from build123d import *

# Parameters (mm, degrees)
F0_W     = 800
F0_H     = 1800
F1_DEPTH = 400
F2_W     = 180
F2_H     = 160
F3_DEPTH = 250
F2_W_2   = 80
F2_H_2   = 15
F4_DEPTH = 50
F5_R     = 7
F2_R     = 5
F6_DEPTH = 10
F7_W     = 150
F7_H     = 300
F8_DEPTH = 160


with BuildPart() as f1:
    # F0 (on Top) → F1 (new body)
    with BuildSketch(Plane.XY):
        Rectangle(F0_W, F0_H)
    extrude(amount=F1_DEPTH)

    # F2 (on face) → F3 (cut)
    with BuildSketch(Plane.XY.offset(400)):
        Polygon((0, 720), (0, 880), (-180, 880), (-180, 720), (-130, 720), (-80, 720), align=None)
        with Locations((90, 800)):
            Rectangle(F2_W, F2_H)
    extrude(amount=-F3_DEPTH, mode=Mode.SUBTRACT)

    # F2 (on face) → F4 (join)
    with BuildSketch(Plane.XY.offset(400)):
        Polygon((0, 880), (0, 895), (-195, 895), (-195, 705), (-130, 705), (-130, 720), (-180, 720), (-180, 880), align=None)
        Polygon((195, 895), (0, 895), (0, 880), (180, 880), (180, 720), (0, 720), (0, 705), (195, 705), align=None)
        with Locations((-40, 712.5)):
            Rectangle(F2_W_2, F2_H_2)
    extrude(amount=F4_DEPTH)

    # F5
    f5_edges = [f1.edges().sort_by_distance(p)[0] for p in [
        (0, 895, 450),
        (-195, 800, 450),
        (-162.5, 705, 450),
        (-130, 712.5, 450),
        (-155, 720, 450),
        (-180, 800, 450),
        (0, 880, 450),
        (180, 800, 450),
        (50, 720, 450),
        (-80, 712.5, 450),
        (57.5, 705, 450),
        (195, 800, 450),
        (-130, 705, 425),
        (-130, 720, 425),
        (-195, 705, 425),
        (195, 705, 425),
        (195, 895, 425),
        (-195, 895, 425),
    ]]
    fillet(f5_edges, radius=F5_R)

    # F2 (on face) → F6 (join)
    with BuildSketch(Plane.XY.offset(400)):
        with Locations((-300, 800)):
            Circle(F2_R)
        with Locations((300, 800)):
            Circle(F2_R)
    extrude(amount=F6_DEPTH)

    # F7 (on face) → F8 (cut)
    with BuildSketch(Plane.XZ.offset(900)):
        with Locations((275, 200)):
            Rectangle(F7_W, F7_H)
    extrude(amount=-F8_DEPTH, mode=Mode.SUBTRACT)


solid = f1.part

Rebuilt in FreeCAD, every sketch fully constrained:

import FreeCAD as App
import Part
import Sketcher

V = App.Vector
Q = App.Units.Quantity


def edges_at(feature, points):
    """Names of the edges that pass closest to the given points."""
    edges = feature.Shape.Edges
    near = lambda p: min(range(len(edges)), key=lambda i: edges[i].distToShape(Part.Vertex(*p))[0])
    return sorted({f"Edge{near(p) + 1}" for p in points})

doc = App.newDocument("Part")
params = doc.addObject("Spreadsheet::Sheet", "Params")
for row, (alias, value) in enumerate([
    ("sketch1_width", "800 mm"),
    ("sketch1_height", "1800 mm"),
    ("pad1_length", "400 mm"),
    ("sketch2_width", "360 mm"),
    ("sketch2_height", "160 mm"),
    ("pocket1_length", "250 mm"),
    ("sketch3_width", "65 mm"),
    ("sketch3_width2", "50 mm"),
    ("sketch3_width3", "360 mm"),
    ("sketch3_width4", "260 mm"),
    ("sketch3_height", "190 mm"),
    ("pad2_length", "50 mm"),
    ("fillet_radius", "7 mm"),
    ("sketch4_diameter", "10 mm"),
    ("pad3_length", "10 mm"),
    ("sketch5_width", "150 mm"),
    ("sketch5_height", "300 mm"),
    ("pocket2_length", "160 mm"),
], start=1):
    params.set(f"A{row}", alias)
    params.set(f"B{row}", "=" + value)
    params.setAlias(f"B{row}", alias)

body = doc.addObject("PartDesign::Body", "Body")

# Sketch on XY plane
sketch1 = body.newObject("Sketcher::SketchObject", "Sketch")
sketch1.AttachmentSupport = (doc.getObject("XY_Plane"), [""])
sketch1.MapMode = "FlatFace"
sketch1.addGeometry([
    Part.LineSegment(V(-400, 900, 0), V(-400, -900, 0)),
    Part.LineSegment(V(-400, -900, 0), V(400, -900, 0)),
    Part.LineSegment(V(400, -900, 0), V(400, 900, 0)),
    Part.LineSegment(V(400, 900, 0), V(-400, 900, 0)),
], False)
sketch1.addConstraint([
    Sketcher.Constraint("Coincident", 0, 2, 1, 1),
    Sketcher.Constraint("Coincident", 1, 2, 2, 1),
    Sketcher.Constraint("Coincident", 2, 2, 3, 1),
    Sketcher.Constraint("Coincident", 3, 2, 0, 1),
    Sketcher.Constraint("Vertical", 0),
    Sketcher.Constraint("Horizontal", 1),
    Sketcher.Constraint("Vertical", 2),
    Sketcher.Constraint("Horizontal", 3),
    Sketcher.Constraint("Symmetric", 0, 2, 2, 2, -1, 1),
    Sketcher.Constraint("DistanceX", 1, 1, 1, 2, Q("800 mm")),
    Sketcher.Constraint("DistanceY", 0, 2, 0, 1, Q("1800 mm")),
])
sketch1.setExpression("Constraints[9]", "Params.sketch1_width")
sketch1.setExpression("Constraints[10]", "Params.sketch1_height")
pad1 = body.newObject("PartDesign::Pad", "Pad")
pad1.Profile = sketch1
pad1.setExpression("Length", "Params.pad1_length")

# Sketch on XY plane
sketch2 = body.newObject("Sketcher::SketchObject", "Sketch001")
sketch2.AttachmentSupport = (doc.getObject("XY_Plane"), [""])
sketch2.MapMode = "FlatFace"
sketch2.AttachmentOffset = App.Placement(V(0, 0, 400), App.Rotation())
sketch2.addGeometry([
    Part.LineSegment(V(-180, 880, 0), V(-180, 720, 0)),
    Part.LineSegment(V(-180, 720, 0), V(180, 720, 0)),
    Part.LineSegment(V(180, 720, 0), V(180, 880, 0)),
    Part.LineSegment(V(180, 880, 0), V(-180, 880, 0)),
], False)
sketch2.addConstraint([
    Sketcher.Constraint("Coincident", 0, 2, 1, 1),
    Sketcher.Constraint("Coincident", 1, 2, 2, 1),
    Sketcher.Constraint("Coincident", 2, 2, 3, 1),
    Sketcher.Constraint("Coincident", 3, 2, 0, 1),
    Sketcher.Constraint("Vertical", 0),
    Sketcher.Constraint("Horizontal", 1),
    Sketcher.Constraint("Vertical", 2),
    Sketcher.Constraint("Horizontal", 3),
    Sketcher.Constraint("DistanceX", 1, 1, 1, 2, Q("360 mm")),
    Sketcher.Constraint("DistanceY", 0, 2, 0, 1, Q("160 mm")),
    Sketcher.Constraint("DistanceX", 0, 2, -1, 1, Q("180 mm")),
    Sketcher.Constraint("DistanceY", -1, 1, 0, 2, Q("720 mm")),
])
sketch2.setExpression("Constraints[8]", "Params.sketch2_width")
sketch2.setExpression("Constraints[9]", "Params.sketch2_height")
pocket1 = body.newObject("PartDesign::Pocket", "Pocket")
pocket1.Profile = sketch2
pocket1.setExpression("Length", "Params.pocket1_length")

# Sketch on XY plane
sketch3 = body.newObject("Sketcher::SketchObject", "Sketch002")
sketch3.AttachmentSupport = (doc.getObject("XY_Plane"), [""])
sketch3.MapMode = "FlatFace"
sketch3.AttachmentOffset = App.Placement(V(0, 0, 400), App.Rotation())
sketch3.addGeometry([
    Part.LineSegment(V(-195, 895, 0), V(-195, 705, 0)),  # 0
    Part.LineSegment(V(-195, 705, 0), V(-130, 705, 0)),  # 1
    Part.LineSegment(V(-130, 705, 0), V(-130, 720, 0)),  # 2
    Part.LineSegment(V(-130, 720, 0), V(-180, 720, 0)),  # 3
    Part.LineSegment(V(-180, 720, 0), V(-180, 880, 0)),  # 4
    Part.LineSegment(V(-180, 880, 0), V(180, 880, 0)),  # 5
    Part.LineSegment(V(180, 880, 0), V(180, 720, 0)),  # 6
    Part.LineSegment(V(180, 720, 0), V(-80, 720, 0)),  # 7
    Part.LineSegment(V(-80, 720, 0), V(-80, 705, 0)),  # 8
    Part.LineSegment(V(-80, 705, 0), V(195, 705, 0)),  # 9
    Part.LineSegment(V(195, 705, 0), V(195, 895, 0)),  # 10
    Part.LineSegment(V(195, 895, 0), V(-195, 895, 0)),  # 11
], False)
sketch3.addConstraint([
    Sketcher.Constraint("Coincident", 0, 2, 1, 1),
    Sketcher.Constraint("Coincident", 1, 2, 2, 1),
    Sketcher.Constraint("Coincident", 2, 2, 3, 1),
    Sketcher.Constraint("Coincident", 3, 2, 4, 1),
    Sketcher.Constraint("Coincident", 4, 2, 5, 1),
    Sketcher.Constraint("Coincident", 5, 2, 6, 1),
    Sketcher.Constraint("Coincident", 6, 2, 7, 1),
    Sketcher.Constraint("Coincident", 7, 2, 8, 1),
    Sketcher.Constraint("Coincident", 8, 2, 9, 1),
    Sketcher.Constraint("Coincident", 9, 2, 10, 1),
    Sketcher.Constraint("Coincident", 10, 2, 11, 1),
    Sketcher.Constraint("Coincident", 11, 2, 0, 1),
    Sketcher.Constraint("Vertical", 0),
    Sketcher.Constraint("Horizontal", 1),
    Sketcher.Constraint("Vertical", 2),
    Sketcher.Constraint("Horizontal", 3),
    Sketcher.Constraint("Vertical", 4),
    Sketcher.Constraint("Horizontal", 5),
    Sketcher.Constraint("Vertical", 6),
    Sketcher.Constraint("Horizontal", 7),
    Sketcher.Constraint("Vertical", 8),
    Sketcher.Constraint("Horizontal", 9),
    Sketcher.Constraint("Vertical", 10),
    Sketcher.Constraint("Horizontal", 11),
    Sketcher.Constraint("Symmetric", 3, 2, 6, 2, -2),
    Sketcher.Constraint("Symmetric", 0, 2, 9, 2, -2),
    Sketcher.Constraint("DistanceX", 1, 1, 1, 2, Q("65 mm")),
    Sketcher.Constraint("DistanceX", 3, 2, 3, 1, Q("50 mm")),
    Sketcher.Constraint("DistanceX", 5, 1, 5, 2, Q("360 mm")),
    Sketcher.Constraint("DistanceX", 7, 2, 7, 1, Q("260 mm")),
    Sketcher.Constraint("DistanceY", 0, 2, 0, 1, Q("190 mm")),
    Sketcher.Constraint("DistanceY", 2, 1, 2, 2, Q("15 mm")),
    Sketcher.Constraint("DistanceY", 4, 1, 4, 2, Q("160 mm")),
    Sketcher.Constraint("DistanceY", -1, 1, 0, 2, Q("705 mm")),
])
sketch3.setExpression("Constraints[26]", "Params.sketch3_width")
sketch3.setExpression("Constraints[27]", "Params.sketch3_width2")
sketch3.setExpression("Constraints[28]", "Params.sketch3_width3")
sketch3.setExpression("Constraints[29]", "Params.sketch3_width4")
sketch3.setExpression("Constraints[30]", "Params.sketch3_height")
pad2 = body.newObject("PartDesign::Pad", "Pad001")
pad2.Profile = sketch3
pad2.setExpression("Length", "Params.pad2_length")
doc.recompute()

fillet = body.newObject("PartDesign::Fillet", "Fillet")
fillet.Base = (pad2, edges_at(pad2, [
    (0, 895, 450),
    (-195, 800, 450),
    (-162.5, 705, 450),
    (-130, 712.5, 450),
    (-155, 720, 450),
    (-180, 800, 450),
    (0, 880, 450),
    (180, 800, 450),
    (50, 720, 450),
    (-80, 712.5, 450),
    (57.5, 705, 450),
    (195, 800, 450),
    (-130, 705, 425),
    (-130, 720, 425),
    (-195, 705, 425),
    (195, 705, 425),
    (195, 895, 425),
    (-195, 895, 425),
]))
fillet.setExpression("Radius", "Params.fillet_radius")

# Sketch on XY plane
sketch4 = body.newObject("Sketcher::SketchObject", "Sketch003")
sketch4.AttachmentSupport = (doc.getObject("XY_Plane"), [""])
sketch4.MapMode = "FlatFace"
sketch4.AttachmentOffset = App.Placement(V(0, 0, 400), App.Rotation())
sketch4.addGeometry([
    Part.Circle(V(-300, 800, 0), V(0, 0, 1), 5),
    Part.Circle(V(300, 800, 0), V(0, 0, 1), 5),
], False)
sketch4.addConstraint([
    Sketcher.Constraint("Equal", 0, 1),
    Sketcher.Constraint("Symmetric", 0, 3, 1, 3, -2),
    Sketcher.Constraint("Diameter", 0, Q("10 mm")),
    Sketcher.Constraint("DistanceX", 0, 3, -1, 1, Q("300 mm")),
    Sketcher.Constraint("DistanceY", -1, 1, 0, 3, Q("800 mm")),
])
sketch4.setExpression("Constraints[2]", "Params.sketch4_diameter")
pad3 = body.newObject("PartDesign::Pad", "Pad002")
pad3.Profile = sketch4
pad3.setExpression("Length", "Params.pad3_length")

# Sketch on XZ plane
sketch5 = body.newObject("Sketcher::SketchObject", "Sketch004")
sketch5.AttachmentSupport = (doc.getObject("XZ_Plane"), [""])
sketch5.MapMode = "FlatFace"
sketch5.AttachmentOffset = App.Placement(V(0, 0, 900), App.Rotation())
sketch5.addGeometry([
    Part.LineSegment(V(200, 350, 0), V(200, 50, 0)),
    Part.LineSegment(V(200, 50, 0), V(350, 50, 0)),
    Part.LineSegment(V(350, 50, 0), V(350, 350, 0)),
    Part.LineSegment(V(350, 350, 0), V(200, 350, 0)),
], False)
sketch5.addConstraint([
    Sketcher.Constraint("Coincident", 0, 2, 1, 1),
    Sketcher.Constraint("Coincident", 1, 2, 2, 1),
    Sketcher.Constraint("Coincident", 2, 2, 3, 1),
    Sketcher.Constraint("Coincident", 3, 2, 0, 1),
    Sketcher.Constraint("Vertical", 0),
    Sketcher.Constraint("Horizontal", 1),
    Sketcher.Constraint("Vertical", 2),
    Sketcher.Constraint("Horizontal", 3),
    Sketcher.Constraint("DistanceX", 1, 1, 1, 2, Q("150 mm")),
    Sketcher.Constraint("DistanceY", 0, 2, 0, 1, Q("300 mm")),
    Sketcher.Constraint("DistanceX", -1, 1, 0, 2, Q("200 mm")),
    Sketcher.Constraint("DistanceY", -1, 1, 0, 2, Q("50 mm")),
])
sketch5.setExpression("Constraints[8]", "Params.sketch5_width")
sketch5.setExpression("Constraints[9]", "Params.sketch5_height")
pocket2 = body.newObject("PartDesign::Pocket", "Pocket001")
pocket2.Profile = sketch5
pocket2.setExpression("Length", "Params.pocket2_length")

doc.recompute()
